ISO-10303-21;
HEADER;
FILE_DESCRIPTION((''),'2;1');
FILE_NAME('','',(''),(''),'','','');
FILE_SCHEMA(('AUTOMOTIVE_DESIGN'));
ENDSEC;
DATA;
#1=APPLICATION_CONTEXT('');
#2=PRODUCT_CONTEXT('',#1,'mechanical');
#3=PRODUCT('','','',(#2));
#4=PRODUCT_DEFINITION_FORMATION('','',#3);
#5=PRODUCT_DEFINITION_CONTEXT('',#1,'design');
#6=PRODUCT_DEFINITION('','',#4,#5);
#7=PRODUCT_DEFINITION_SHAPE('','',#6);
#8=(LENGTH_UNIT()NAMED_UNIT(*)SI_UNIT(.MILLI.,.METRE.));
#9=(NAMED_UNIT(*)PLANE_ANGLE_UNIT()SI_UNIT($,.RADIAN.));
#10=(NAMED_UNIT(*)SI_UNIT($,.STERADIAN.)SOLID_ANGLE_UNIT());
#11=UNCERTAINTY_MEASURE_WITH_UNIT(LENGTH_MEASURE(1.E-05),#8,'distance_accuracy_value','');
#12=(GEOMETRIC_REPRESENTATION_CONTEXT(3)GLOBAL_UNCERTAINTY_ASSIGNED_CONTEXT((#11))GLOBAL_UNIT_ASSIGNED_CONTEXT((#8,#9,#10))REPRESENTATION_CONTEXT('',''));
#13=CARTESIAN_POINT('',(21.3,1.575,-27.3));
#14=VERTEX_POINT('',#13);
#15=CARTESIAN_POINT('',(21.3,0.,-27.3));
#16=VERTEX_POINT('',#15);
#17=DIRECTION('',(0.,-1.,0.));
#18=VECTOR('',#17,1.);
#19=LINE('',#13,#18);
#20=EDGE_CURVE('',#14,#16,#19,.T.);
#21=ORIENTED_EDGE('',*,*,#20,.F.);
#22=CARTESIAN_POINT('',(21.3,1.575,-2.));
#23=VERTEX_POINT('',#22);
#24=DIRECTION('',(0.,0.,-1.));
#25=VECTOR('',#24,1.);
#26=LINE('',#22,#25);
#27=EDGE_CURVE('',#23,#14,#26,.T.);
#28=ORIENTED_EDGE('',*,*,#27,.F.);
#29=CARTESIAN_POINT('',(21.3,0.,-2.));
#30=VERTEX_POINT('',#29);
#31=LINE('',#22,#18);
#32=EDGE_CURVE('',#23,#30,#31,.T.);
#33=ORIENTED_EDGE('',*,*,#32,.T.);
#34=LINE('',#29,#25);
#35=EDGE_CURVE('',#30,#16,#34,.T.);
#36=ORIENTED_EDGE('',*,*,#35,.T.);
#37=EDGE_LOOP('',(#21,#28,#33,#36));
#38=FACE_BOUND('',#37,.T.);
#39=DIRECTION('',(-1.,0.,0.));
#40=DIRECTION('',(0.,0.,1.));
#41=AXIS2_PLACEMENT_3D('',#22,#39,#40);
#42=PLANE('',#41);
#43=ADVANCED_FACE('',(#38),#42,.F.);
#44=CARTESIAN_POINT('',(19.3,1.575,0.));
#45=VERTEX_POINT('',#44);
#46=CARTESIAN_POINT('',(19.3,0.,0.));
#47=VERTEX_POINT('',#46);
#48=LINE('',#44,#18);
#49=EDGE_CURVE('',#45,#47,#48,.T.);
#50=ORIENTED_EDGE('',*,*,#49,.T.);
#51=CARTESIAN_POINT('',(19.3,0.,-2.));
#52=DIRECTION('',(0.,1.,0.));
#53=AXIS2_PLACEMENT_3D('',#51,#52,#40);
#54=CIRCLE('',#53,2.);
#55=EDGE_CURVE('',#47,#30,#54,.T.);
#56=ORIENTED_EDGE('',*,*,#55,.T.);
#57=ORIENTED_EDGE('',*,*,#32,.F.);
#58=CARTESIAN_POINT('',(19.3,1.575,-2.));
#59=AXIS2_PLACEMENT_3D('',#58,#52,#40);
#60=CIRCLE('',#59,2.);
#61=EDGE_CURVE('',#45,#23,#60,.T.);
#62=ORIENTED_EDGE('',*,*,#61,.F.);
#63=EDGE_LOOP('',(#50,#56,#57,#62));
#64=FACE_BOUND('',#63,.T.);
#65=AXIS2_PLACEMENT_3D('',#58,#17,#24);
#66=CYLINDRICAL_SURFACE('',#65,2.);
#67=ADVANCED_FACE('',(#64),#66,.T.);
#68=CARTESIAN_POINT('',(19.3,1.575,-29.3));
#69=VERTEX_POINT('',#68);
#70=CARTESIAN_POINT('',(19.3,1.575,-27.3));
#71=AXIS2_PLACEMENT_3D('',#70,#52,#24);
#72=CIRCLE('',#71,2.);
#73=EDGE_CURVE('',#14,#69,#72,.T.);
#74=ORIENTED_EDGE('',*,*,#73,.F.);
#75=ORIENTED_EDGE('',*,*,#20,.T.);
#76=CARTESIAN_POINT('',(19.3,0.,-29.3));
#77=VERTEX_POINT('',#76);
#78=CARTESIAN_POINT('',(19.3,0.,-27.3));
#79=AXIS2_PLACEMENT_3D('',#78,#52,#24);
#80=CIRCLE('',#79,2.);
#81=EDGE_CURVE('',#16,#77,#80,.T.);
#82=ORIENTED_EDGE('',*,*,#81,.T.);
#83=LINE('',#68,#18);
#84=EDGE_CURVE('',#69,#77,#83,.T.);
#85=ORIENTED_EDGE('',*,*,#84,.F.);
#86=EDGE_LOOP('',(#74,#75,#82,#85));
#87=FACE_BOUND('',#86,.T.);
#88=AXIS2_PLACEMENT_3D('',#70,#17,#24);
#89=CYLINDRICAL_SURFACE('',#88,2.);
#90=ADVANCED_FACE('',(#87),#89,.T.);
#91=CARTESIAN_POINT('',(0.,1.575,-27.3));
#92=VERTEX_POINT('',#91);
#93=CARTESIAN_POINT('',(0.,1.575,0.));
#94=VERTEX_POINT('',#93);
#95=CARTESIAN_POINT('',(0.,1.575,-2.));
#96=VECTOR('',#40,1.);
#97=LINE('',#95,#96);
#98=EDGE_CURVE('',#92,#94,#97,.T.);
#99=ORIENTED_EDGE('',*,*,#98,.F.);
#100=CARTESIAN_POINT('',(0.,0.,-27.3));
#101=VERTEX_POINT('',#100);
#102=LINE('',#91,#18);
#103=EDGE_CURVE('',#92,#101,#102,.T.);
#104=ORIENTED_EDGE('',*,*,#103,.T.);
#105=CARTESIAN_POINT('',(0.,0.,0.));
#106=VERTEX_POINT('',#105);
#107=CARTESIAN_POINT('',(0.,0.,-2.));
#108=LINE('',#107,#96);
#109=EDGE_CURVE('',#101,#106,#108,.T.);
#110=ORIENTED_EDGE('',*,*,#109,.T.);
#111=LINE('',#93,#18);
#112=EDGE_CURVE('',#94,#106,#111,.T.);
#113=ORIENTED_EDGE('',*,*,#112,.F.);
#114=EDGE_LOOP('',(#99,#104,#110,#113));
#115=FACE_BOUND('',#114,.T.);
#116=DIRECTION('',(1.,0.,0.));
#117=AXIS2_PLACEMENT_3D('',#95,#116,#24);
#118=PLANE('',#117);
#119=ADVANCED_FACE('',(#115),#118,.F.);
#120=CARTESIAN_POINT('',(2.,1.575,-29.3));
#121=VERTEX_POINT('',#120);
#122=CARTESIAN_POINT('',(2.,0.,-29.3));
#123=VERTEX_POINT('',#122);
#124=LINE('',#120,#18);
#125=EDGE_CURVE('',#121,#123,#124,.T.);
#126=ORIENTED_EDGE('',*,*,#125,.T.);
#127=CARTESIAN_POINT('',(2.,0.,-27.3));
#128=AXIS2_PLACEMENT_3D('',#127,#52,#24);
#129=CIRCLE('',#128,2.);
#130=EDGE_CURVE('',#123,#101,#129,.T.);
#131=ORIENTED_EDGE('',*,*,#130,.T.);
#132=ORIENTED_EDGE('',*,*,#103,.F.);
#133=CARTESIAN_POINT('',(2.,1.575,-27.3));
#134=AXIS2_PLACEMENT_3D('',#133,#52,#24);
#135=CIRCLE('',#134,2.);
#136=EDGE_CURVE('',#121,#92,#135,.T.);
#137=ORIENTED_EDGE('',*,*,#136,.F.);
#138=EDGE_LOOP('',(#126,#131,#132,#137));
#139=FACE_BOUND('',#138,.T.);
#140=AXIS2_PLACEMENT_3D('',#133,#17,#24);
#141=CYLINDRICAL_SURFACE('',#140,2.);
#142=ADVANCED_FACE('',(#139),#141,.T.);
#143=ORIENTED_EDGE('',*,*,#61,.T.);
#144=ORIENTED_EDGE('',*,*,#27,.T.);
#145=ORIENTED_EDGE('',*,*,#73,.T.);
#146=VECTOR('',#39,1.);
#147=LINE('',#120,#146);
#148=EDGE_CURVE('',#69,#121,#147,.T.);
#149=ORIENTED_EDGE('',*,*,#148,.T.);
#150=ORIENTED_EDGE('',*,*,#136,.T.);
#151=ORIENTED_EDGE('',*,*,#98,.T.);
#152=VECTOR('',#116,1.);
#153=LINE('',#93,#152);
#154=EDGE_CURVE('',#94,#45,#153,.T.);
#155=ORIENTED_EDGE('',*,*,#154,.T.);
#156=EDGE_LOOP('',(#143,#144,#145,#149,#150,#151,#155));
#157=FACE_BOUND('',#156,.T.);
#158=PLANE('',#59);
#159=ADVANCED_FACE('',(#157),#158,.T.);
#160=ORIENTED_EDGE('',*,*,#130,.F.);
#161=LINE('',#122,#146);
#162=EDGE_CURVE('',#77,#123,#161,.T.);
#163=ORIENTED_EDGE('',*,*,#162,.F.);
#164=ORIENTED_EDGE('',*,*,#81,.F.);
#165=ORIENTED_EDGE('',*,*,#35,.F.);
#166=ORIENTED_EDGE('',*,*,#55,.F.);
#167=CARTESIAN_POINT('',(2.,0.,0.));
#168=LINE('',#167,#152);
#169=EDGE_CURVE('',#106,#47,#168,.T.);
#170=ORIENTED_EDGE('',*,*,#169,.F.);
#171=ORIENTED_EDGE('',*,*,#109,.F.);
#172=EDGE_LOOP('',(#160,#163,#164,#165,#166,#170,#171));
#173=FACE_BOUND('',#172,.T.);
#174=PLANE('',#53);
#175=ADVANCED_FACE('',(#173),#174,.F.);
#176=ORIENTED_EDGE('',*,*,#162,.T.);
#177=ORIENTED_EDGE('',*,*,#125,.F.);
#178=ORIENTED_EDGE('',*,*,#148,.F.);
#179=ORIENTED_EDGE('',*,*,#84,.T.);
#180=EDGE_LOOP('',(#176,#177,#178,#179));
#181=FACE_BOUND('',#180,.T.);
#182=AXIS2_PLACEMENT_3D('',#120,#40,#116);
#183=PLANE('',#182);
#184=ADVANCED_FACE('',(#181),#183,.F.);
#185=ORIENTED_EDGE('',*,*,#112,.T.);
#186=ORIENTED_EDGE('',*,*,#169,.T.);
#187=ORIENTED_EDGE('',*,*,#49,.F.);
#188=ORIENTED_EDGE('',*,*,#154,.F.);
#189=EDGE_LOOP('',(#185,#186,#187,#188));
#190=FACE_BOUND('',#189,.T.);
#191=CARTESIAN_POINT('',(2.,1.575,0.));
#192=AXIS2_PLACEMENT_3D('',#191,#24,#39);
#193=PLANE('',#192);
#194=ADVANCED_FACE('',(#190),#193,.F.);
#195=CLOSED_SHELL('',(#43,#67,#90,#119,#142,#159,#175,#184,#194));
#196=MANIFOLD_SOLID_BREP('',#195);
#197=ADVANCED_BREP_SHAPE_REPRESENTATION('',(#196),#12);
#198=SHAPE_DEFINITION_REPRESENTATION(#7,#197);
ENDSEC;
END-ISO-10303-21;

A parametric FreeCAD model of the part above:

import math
import FreeCAD as App
import Part
import Sketcher
Q = App.Units.Quantity

doc = App.newDocument("Part")
params = doc.addObject("Spreadsheet::Sheet", "Params")
for row, (alias, value) in enumerate([
    ("sketch1_radius", "2 mm"),
    ("sketch1_width", "19.3 mm"),
    ("sketch1_height", "25.3 mm"),
    ("pad1_length", "1.575 mm"),
], start=1):
    params.set(f"A{row}", alias)
    params.set(f"B{row}", "=" + value)
    params.setAlias(f"B{row}", alias)

body = doc.addObject("PartDesign::Body", "Body")

sketch1 = doc.addObject("Sketcher::SketchObject", "Sketch")
body.addObject(sketch1)
sketch1.AttachmentSupport = (doc.XZ_Plane, [""])
sketch1.MapMode = "FlatFace"
sketch1.addGeometry(Part.LineSegment(App.Vector(0, 0, 0), App.Vector(19.3, 0, 0)), False)
sketch1.addGeometry(Part.ArcOfCircle(Part.Circle(App.Vector(19.3, -2, 0), App.Vector(0, 0, 1), 2), math.radians(0), math.radians(90)), False)
sketch1.addGeometry(Part.LineSegment(App.Vector(21.3, -2, 0), App.Vector(21.3, -27.3, 0)), False)
sketch1.addGeometry(Part.ArcOfCircle(Part.Circle(App.Vector(19.3, -27.3, 0), App.Vector(0, 0, 1), 2), math.radians(-90), math.radians(0)), False)
sketch1.addGeometry(Part.LineSegment(App.Vector(19.3, -29.3, 0), App.Vector(2, -29.3, 0)), False)
sketch1.addGeometry(Part.ArcOfCircle(Part.Circle(App.Vector(2, -27.3, 0), App.Vector(0, 0, 1), 2), math.radians(-180), math.radians(-90)), False)
sketch1.addGeometry(Part.LineSegment(App.Vector(0, -27.3, 0), App.Vector(0, 0, 0)), False)
sketch1.addConstraint(Sketcher.Constraint("Tangent", 0, 2, 1, 2))
sketch1.addConstraint(Sketcher.Constraint("Tangent", 1, 1, 2, 1))
sketch1.addConstraint(Sketcher.Constraint("Tangent", 2, 2, 3, 2))
sketch1.addConstraint(Sketcher.Constraint("Tangent", 3, 1, 4, 1))
sketch1.addConstraint(Sketcher.Constraint("Tangent", 4, 2, 5, 2))
sketch1.addConstraint(Sketcher.Constraint("Tangent", 5, 1, 6, 1))
sketch1.addConstraint(Sketcher.Constraint("Coincident", 6, 2, 0, 1))
sketch1.addConstraint(Sketcher.Constraint("Horizontal", 0))
sketch1.addConstraint(Sketcher.Constraint("Vertical", 2))
sketch1.addConstraint(Sketcher.Constraint("Horizontal", 4))
sketch1.addConstraint(Sketcher.Constraint("Vertical", 6))
sketch1.addConstraint(Sketcher.Constraint("Coincident", 6, 2, -1, 1))
sketch1.addConstraint(Sketcher.Constraint("Equal", 1, 3))
sketch1.addConstraint(Sketcher.Constraint("Equal", 3, 5))
sketch1.addConstraint(Sketcher.Constraint("Radius", 1, Q("2 mm")))
sketch1.addConstraint(Sketcher.Constraint("DistanceX", 0, 1, 0, 2, Q("19.3 mm")))
sketch1.addConstraint(Sketcher.Constraint("DistanceY", 2, 2, 2, 1, Q("25.3 mm")))
sketch1.setExpression("Constraints[14]", "Params.sketch1_radius")
sketch1.setExpression("Constraints[15]", "Params.sketch1_width")
sketch1.setExpression("Constraints[16]", "Params.sketch1_height")
pad1 = doc.addObject("PartDesign::Pad", "Pad")
body.addObject(pad1)
pad1.Profile = sketch1
pad1.setExpression("Length", "Params.pad1_length")
pad1.Reversed = True

doc.recompute()
